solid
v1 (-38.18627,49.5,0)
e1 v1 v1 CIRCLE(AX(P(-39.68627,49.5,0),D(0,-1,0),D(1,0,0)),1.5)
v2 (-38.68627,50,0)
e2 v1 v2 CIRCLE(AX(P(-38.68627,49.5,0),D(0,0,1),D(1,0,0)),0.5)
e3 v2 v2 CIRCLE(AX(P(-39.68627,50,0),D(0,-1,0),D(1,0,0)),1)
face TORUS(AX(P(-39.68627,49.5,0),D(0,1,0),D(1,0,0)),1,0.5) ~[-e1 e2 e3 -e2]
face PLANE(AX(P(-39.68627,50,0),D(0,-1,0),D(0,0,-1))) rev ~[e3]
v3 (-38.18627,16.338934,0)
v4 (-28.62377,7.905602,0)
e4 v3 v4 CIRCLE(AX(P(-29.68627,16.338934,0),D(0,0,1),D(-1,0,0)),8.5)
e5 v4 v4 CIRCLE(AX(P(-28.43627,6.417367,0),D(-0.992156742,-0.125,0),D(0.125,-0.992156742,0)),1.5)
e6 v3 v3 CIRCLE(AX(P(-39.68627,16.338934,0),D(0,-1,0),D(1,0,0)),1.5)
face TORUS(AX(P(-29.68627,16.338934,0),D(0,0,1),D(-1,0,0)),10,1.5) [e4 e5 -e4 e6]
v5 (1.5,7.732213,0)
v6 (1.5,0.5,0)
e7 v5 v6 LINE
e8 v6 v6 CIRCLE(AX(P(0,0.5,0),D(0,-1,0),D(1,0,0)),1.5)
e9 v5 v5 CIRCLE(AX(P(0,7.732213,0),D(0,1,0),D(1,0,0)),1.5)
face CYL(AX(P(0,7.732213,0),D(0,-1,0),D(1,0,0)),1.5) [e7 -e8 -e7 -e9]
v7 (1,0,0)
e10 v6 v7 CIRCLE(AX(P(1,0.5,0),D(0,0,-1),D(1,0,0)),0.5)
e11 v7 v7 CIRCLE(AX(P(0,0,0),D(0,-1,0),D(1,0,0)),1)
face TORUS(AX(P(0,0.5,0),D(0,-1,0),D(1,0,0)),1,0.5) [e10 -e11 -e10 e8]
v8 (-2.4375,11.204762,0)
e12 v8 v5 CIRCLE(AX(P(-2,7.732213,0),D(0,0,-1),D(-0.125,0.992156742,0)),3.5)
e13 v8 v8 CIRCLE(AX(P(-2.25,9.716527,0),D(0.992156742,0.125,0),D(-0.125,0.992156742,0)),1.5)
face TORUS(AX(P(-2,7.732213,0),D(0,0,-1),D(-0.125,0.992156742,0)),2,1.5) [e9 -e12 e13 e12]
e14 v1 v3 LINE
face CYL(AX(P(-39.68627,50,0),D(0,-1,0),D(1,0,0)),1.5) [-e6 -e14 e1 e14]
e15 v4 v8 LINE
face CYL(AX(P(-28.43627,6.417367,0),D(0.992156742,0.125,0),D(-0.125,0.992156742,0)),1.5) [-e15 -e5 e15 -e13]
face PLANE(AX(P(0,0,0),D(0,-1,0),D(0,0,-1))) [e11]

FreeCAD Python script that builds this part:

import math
import FreeCAD as App
import Part
import Sketcher

V = App.Vector
Q = App.Units.Quantity


def edges_at(feature, points):
    """Names of the edges that pass closest to the given points."""
    edges = feature.Shape.Edges
    near = lambda p: min(range(len(edges)), key=lambda i: edges[i].distToShape(Part.Vertex(*p))[0])
    return sorted({f"Edge{near(p) + 1}" for p in points})

doc = App.newDocument("Part")
params = doc.addObject("Spreadsheet::Sheet", "Params")
for row, (alias, value) in enumerate([
    ("sketch1_diameter", "3 mm"),
    ("sketch2_radius", "10 mm"),
    ("sketch2_radius2", "2 mm"),
    ("fillet_radius", "0.5 mm"),
], start=1):
    params.set(f"A{row}", alias)
    params.set(f"B{row}", "=" + value)
    params.setAlias(f"B{row}", alias)

body = doc.addObject("PartDesign::Body", "Body")

sketch1 = body.newObject("Sketcher::SketchObject", "Sketch")
sketch1.AttachmentSupport = (doc.getObject("XZ_Plane"), [""])
sketch1.MapMode = "FlatFace"
sketch1.AttachmentOffset = App.Placement(V(0, 0, -50), App.Rotation())
sketch1.addGeometry(Part.Circle(V(-39.7, 0, 0), V(0, 0, 1), 1.5), False)
sketch1.addConstraint([
    Sketcher.Constraint("PointOnObject", 0, 3, -1),
    Sketcher.Constraint("Diameter", 0, Q("3 mm")),
    Sketcher.Constraint("DistanceX", 0, 3, -1, 1, Q("39.68627 mm")),
])
sketch1.setExpression("Constraints[1]", "Params.sketch1_diameter")

sketch2 = body.newObject("Sketcher::SketchObject", "Sketch001")
sketch2.AttachmentSupport = (doc.getObject("XY_Plane"), [""])
sketch2.MapMode = "FlatFace"
sketch2.addGeometry([
    Part.LineSegment(V(-39.7, 50, 0), V(-39.7, 16.3, 0)),
    Part.ArcOfCircle(Part.Circle(V(-29.7, 16.3, 0), V(0, 0, 1), 10), math.radians(180), math.radians(277)),
    Part.LineSegment(V(-28.4, 6.4, 0), V(-2.2, 9.7, 0)),
    Part.ArcOfCircle(Part.Circle(V(-2, 7.7, 0), V(0, 0, 1), 2), math.radians(0), math.radians(97)),
    Part.LineSegment(V(0, 7.7, 0), V(0, 0, 0)),
], False)
sketch2.addConstraint([
    Sketcher.Constraint("Tangent", 0, 2, 1, 1),
    Sketcher.Constraint("Tangent", 1, 2, 2, 1),
    Sketcher.Constraint("Tangent", 2, 2, 3, 2),
    Sketcher.Constraint("Tangent", 3, 1, 4, 1),
    Sketcher.Constraint("Vertical", 0),
    Sketcher.Constraint("Vertical", 4),
    Sketcher.Constraint("Coincident", 4, 2, -1, 1),
    Sketcher.Constraint("Radius", 1, Q("10 mm")),
    Sketcher.Constraint("Radius", 3, Q("2 mm")),
    Sketcher.Constraint("DistanceY", -1, 1, 0, 1, Q("50 mm")),
    Sketcher.Constraint("DistanceX", 2, 2, -1, 1, Q("2.25 mm")),
    Sketcher.Constraint("Distance", 2, Q("26.393279 mm")),
    Sketcher.Constraint("DistanceY", 0, 2, 0, 1, Q("33.661066 mm")),
])
sketch2.setExpression("Constraints[7]", "Params.sketch2_radius")
sketch2.setExpression("Constraints[8]", "Params.sketch2_radius2")
doc.recompute()

additivepipe = body.newObject("PartDesign::AdditivePipe", "AdditivePipe")
additivepipe.Profile = sketch1
additivepipe.Spine = (sketch2, ["Edge1", "Edge2", "Edge3", "Edge4", "Edge5"])
doc.recompute()

fillet = body.newObject("PartDesign::Fillet", "Fillet")
fillet.Base = (additivepipe, edges_at(additivepipe, [(-41.186, 50, 0), (-1.5, 0, 0)]))
fillet.setExpression("Radius", "Params.fillet_radius")

doc.recompute()
